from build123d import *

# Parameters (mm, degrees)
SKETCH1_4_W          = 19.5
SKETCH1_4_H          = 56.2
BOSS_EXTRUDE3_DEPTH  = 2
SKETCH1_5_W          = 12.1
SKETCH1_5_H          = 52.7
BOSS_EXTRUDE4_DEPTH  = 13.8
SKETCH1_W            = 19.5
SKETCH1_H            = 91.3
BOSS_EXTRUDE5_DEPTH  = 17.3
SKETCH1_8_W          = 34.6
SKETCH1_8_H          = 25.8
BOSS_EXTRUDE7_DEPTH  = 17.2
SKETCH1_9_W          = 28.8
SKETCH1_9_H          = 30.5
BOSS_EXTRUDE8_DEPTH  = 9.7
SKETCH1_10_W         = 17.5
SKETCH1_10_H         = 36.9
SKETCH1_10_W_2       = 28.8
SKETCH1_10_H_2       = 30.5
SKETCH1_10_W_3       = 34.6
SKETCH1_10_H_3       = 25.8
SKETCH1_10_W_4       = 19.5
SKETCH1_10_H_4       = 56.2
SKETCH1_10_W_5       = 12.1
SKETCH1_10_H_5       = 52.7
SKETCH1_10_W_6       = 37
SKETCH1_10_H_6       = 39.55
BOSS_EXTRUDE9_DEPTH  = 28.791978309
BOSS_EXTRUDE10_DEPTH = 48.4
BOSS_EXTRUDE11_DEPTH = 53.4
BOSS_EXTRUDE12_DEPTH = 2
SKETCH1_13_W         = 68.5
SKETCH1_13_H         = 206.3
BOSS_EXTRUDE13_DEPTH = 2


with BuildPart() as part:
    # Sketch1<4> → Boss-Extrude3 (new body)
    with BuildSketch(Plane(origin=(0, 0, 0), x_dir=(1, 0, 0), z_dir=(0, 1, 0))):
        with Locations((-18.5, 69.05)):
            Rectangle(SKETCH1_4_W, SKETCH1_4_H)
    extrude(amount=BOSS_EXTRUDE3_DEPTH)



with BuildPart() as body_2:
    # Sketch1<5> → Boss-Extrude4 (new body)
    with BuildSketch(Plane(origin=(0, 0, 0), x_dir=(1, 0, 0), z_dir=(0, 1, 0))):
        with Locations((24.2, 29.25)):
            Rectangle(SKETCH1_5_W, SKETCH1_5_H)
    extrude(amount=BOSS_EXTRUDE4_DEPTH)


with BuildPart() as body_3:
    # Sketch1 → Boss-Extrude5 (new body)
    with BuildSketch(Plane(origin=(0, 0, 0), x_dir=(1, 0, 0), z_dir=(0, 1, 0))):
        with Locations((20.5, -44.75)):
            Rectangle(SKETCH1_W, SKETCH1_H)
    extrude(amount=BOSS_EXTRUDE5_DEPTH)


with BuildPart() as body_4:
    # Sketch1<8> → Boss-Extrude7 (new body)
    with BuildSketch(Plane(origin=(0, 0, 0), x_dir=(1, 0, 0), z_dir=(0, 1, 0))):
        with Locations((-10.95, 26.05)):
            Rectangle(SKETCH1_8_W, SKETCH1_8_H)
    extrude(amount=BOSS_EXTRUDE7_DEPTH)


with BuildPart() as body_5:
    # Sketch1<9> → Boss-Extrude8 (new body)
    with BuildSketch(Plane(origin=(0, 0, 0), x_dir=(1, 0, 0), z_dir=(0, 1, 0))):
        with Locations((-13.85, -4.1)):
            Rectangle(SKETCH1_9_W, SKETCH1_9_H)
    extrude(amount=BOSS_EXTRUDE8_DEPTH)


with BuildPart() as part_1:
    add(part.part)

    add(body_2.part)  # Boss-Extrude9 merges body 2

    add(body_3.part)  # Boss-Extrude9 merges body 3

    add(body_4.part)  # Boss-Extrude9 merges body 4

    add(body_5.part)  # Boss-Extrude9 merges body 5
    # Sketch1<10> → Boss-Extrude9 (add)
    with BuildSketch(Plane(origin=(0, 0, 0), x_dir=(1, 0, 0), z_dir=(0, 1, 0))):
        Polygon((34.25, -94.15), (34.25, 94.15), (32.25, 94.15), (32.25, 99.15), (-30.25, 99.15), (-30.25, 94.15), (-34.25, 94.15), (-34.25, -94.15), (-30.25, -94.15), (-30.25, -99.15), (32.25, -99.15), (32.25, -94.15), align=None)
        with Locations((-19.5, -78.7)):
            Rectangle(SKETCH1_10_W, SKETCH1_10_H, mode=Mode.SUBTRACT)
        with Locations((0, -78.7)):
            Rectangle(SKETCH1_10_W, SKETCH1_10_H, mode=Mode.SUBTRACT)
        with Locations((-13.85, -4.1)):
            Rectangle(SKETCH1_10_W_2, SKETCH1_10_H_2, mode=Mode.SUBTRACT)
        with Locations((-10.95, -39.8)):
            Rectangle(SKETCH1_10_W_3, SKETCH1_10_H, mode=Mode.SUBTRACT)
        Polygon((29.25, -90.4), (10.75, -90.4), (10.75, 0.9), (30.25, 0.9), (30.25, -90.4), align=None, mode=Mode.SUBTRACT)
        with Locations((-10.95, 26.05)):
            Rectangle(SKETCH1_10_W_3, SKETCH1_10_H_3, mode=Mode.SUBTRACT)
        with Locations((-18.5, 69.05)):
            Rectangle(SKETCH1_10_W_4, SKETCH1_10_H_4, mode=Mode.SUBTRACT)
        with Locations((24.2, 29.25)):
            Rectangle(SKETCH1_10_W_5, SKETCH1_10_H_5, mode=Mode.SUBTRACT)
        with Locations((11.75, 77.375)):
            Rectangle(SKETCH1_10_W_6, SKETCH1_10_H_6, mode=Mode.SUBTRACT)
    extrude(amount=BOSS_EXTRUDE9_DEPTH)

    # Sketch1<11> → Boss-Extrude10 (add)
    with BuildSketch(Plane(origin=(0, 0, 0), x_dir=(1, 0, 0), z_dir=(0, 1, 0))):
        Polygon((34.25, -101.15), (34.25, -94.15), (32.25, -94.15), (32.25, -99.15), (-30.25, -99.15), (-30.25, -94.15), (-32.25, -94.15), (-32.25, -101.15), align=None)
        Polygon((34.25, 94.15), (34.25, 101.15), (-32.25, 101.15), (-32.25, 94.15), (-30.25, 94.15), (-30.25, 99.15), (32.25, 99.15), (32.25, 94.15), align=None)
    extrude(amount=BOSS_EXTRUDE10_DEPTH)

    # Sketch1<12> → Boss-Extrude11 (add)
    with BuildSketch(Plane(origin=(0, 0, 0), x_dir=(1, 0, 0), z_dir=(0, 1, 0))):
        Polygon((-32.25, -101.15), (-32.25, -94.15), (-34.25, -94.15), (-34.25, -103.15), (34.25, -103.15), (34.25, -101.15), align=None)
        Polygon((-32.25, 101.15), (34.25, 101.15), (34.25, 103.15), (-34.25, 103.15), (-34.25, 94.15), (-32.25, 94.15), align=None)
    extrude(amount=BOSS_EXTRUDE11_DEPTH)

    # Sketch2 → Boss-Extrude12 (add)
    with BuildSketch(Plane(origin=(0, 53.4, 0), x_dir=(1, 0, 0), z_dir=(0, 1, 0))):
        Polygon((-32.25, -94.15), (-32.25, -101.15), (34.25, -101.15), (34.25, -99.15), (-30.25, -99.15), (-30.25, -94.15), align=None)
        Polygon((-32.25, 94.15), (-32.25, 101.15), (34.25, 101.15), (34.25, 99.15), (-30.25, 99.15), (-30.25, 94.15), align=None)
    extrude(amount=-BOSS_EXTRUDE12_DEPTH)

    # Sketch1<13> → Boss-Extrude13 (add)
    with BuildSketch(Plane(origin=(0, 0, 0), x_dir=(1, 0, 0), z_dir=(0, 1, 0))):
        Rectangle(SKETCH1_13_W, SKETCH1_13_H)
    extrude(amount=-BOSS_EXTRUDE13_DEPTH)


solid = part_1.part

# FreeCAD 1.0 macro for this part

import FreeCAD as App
import Part
import Sketcher
from FreeCAD import Vector
Q = App.Units.Quantity

doc = App.newDocument("Part")
params = doc.addObject("Spreadsheet::Sheet", "Params")
for row, (alias, value) in enumerate([
    ("sketch1_width", "19.5 mm"),
    ("sketch1_height", "56.2 mm"),
    ("pad1_length", "2 mm"),
    ("sketch2_width", "12.1 mm"),
    ("sketch2_height", "52.7 mm"),
    ("pad2_length", "13.8 mm"),
    ("sketch3_width", "19.5 mm"),
    ("sketch3_height", "91.3 mm"),
    ("pad3_length", "17.3 mm"),
    ("sketch4_width", "34.6 mm"),
    ("sketch4_height", "25.8 mm"),
    ("pad4_length", "17.2 mm"),
    ("sketch5_width", "28.8 mm"),
    ("sketch5_height", "30.5 mm"),
    ("pad5_length", "9.7 mm"),
    ("sketch6_width", "2 mm"),
    ("sketch6_width2", "4 mm"),
    ("sketch6_width3", "37 mm"),
    ("sketch6_height", "5 mm"),
    ("sketch6_width4", "62.5 mm"),
    ("pad6_length", "28.791978 mm"),
    ("sketch7_width", "2 mm"),
    ("sketch7_height", "7 mm"),
    ("sketch7_height2", "5 mm"),
    ("sketch7_width2", "62.5 mm"),
    ("pad7_length", "48.4 mm"),
    ("sketch8_width", "2 mm"),
    ("sketch8_height", "7 mm"),
    ("sketch8_width2", "68.5 mm"),
    ("pad8_length", "53.4 mm"),
    ("sketch9_width", "2 mm"),
    ("sketch9_height", "7 mm"),
    ("sketch9_width2", "66.5 mm"),
    ("pad9_length", "2 mm"),
    ("sketch10_width", "68.5 mm"),
    ("sketch10_height", "206.3 mm"),
    ("pad10_length", "2 mm"),
], start=1):
    params.set(f"A{row}", alias)
    params.set(f"B{row}", "=" + value)
    params.setAlias(f"B{row}", alias)

body = doc.addObject("PartDesign::Body", "Body")

# Sketch on XZ plane
sketch1 = body.newObject("Sketcher::SketchObject", "Sketch")
sketch1.AttachmentSupport = (doc.getObject("XZ_Plane"), [""])
sketch1.MapMode = "FlatFace"
sketch1.addGeometry(Part.LineSegment(Vector(-28.25, -97.15, 0), Vector(-28.25, -40.95, 0)), False)
sketch1.addGeometry(Part.LineSegment(Vector(-28.25, -40.95, 0), Vector(-8.75, -40.95, 0)), False)
sketch1.addGeometry(Part.LineSegment(Vector(-8.75, -40.95, 0), Vector(-8.75, -97.15, 0)), False)
sketch1.addGeometry(Part.LineSegment(Vector(-8.75, -97.15, 0), Vector(-28.25, -97.15, 0)), False)
sketch1.addConstraint(Sketcher.Constraint("Coincident", 0, 2, 1, 1))
sketch1.addConstraint(Sketcher.Constraint("Coincident", 1, 2, 2, 1))
sketch1.addConstraint(Sketcher.Constraint("Coincident", 2, 2, 3, 1))
sketch1.addConstraint(Sketcher.Constraint("Coincident", 3, 2, 0, 1))
sketch1.addConstraint(Sketcher.Constraint("Vertical", 0))
sketch1.addConstraint(Sketcher.Constraint("Horizontal", 1))
sketch1.addConstraint(Sketcher.Constraint("Vertical", 2))
sketch1.addConstraint(Sketcher.Constraint("Horizontal", 3))
sketch1.addConstraint(Sketcher.Constraint("DistanceX", 1, 1, 1, 2, Q("19.5 mm")))
sketch1.addConstraint(Sketcher.Constraint("DistanceY", 0, 1, 0, 2, Q("56.2 mm")))
sketch1.addConstraint(Sketcher.Constraint("DistanceX", 0, 2, -1, 1, Q("28.25 mm")))
sketch1.addConstraint(Sketcher.Constraint("DistanceY", 0, 2, -1, 1, Q("40.95 mm")))
sketch1.setExpression("Constraints[8]", "Params.sketch1_width")
sketch1.setExpression("Constraints[9]", "Params.sketch1_height")
pad1 = body.newObject("PartDesign::Pad", "Pad")
pad1.Profile = sketch1
pad1.setExpression("Length", "Params.pad1_length")
pad1.Reversed = True
body2 = doc.addObject("PartDesign::Body", "Body001")

# Sketch on XZ plane
sketch2 = body2.newObject("Sketcher::SketchObject", "Sketch001")
sketch2.AttachmentSupport = (doc.getObject("XZ_Plane001"), [""])
sketch2.MapMode = "FlatFace"
sketch2.addGeometry(Part.LineSegment(Vector(18.15, -55.6, 0), Vector(18.15, -2.9, 0)), False)
sketch2.addGeometry(Part.LineSegment(Vector(18.15, -2.9, 0), Vector(30.25, -2.9, 0)), False)
sketch2.addGeometry(Part.LineSegment(Vector(30.25, -2.9, 0), Vector(30.25, -55.6, 0)), False)
sketch2.addGeometry(Part.LineSegment(Vector(30.25, -55.6, 0), Vector(18.15, -55.6, 0)), False)
sketch2.addConstraint(Sketcher.Constraint("Coincident", 0, 2, 1, 1))
sketch2.addConstraint(Sketcher.Constraint("Coincident", 1, 2, 2, 1))
sketch2.addConstraint(Sketcher.Constraint("Coincident", 2, 2, 3, 1))
sketch2.addConstraint(Sketcher.Constraint("Coincident", 3, 2, 0, 1))
sketch2.addConstraint(Sketcher.Constraint("Vertical", 0))
sketch2.addConstraint(Sketcher.Constraint("Horizontal", 1))
sketch2.addConstraint(Sketcher.Constraint("Vertical", 2))
sketch2.addConstraint(Sketcher.Constraint("Horizontal", 3))
sketch2.addConstraint(Sketcher.Constraint("DistanceX", 1, 1, 1, 2, Q("12.1 mm")))
sketch2.addConstraint(Sketcher.Constraint("DistanceY", 0, 1, 0, 2, Q("52.7 mm")))
sketch2.addConstraint(Sketcher.Constraint("DistanceY", 0, 2, -1, 1, Q("2.9 mm")))
sketch2.addConstraint(Sketcher.Constraint("DistanceX", -1, 1, 0, 2, Q("18.15 mm")))
sketch2.setExpression("Constraints[8]", "Params.sketch2_width")
sketch2.setExpression("Constraints[9]", "Params.sketch2_height")
pad2 = body2.newObject("PartDesign::Pad", "Pad001")
pad2.Profile = sketch2
pad2.setExpression("Length", "Params.pad2_length")
pad2.Reversed = True
body3 = doc.addObject("PartDesign::Body", "Body002")

# Sketch on XZ plane
sketch3 = body3.newObject("Sketcher::SketchObject", "Sketch002")
sketch3.AttachmentSupport = (doc.getObject("XZ_Plane002"), [""])
sketch3.MapMode = "FlatFace"
sketch3.addGeometry(Part.LineSegment(Vector(10.75, -0.9, 0), Vector(10.75, 90.4, 0)), False)
sketch3.addGeometry(Part.LineSegment(Vector(10.75, 90.4, 0), Vector(30.25, 90.4, 0)), False)
sketch3.addGeometry(Part.LineSegment(Vector(30.25, 90.4, 0), Vector(30.25, -0.9, 0)), False)
sketch3.addGeometry(Part.LineSegment(Vector(30.25, -0.9, 0), Vector(10.75, -0.9, 0)), False)
sketch3.addConstraint(Sketcher.Constraint("Coincident", 0, 2, 1, 1))
sketch3.addConstraint(Sketcher.Constraint("Coincident", 1, 2, 2, 1))
sketch3.addConstraint(Sketcher.Constraint("Coincident", 2, 2, 3, 1))
sketch3.addConstraint(Sketcher.Constraint("Coincident", 3, 2, 0, 1))
sketch3.addConstraint(Sketcher.Constraint("Vertical", 0))
sketch3.addConstraint(Sketcher.Constraint("Horizontal", 1))
sketch3.addConstraint(Sketcher.Constraint("Vertical", 2))
sketch3.addConstraint(Sketcher.Constraint("Horizontal", 3))
sketch3.addConstraint(Sketcher.Constraint("DistanceX", 1, 1, 1, 2, Q("19.5 mm")))
sketch3.addConstraint(Sketcher.Constraint("DistanceY", 0, 1, 0, 2, Q("91.3 mm")))
sketch3.addConstraint(Sketcher.Constraint("DistanceY", -1, 1, 0, 2, Q("90.4 mm")))
sketch3.addConstraint(Sketcher.Constraint("DistanceX", -1, 1, 0, 2, Q("10.75 mm")))
sketch3.setExpression("Constraints[8]", "Params.sketch3_width")
sketch3.setExpression("Constraints[9]", "Params.sketch3_height")
pad3 = body3.newObject("PartDesign::Pad", "Pad002")
pad3.Profile = sketch3
pad3.setExpression("Length", "Params.pad3_length")
pad3.Reversed = True
body4 = doc.addObject("PartDesign::Body", "Body003")

# Sketch on XZ plane
sketch4 = body4.newObject("Sketcher::SketchObject", "Sketch003")
sketch4.AttachmentSupport = (doc.getObject("XZ_Plane003"), [""])
sketch4.MapMode = "FlatFace"
sketch4.addGeometry(Part.LineSegment(Vector(-28.25, -38.95, 0), Vector(-28.25, -13.15, 0)), False)
sketch4.addGeometry(Part.LineSegment(Vector(-28.25, -13.15, 0), Vector(6.35, -13.15, 0)), False)
sketch4.addGeometry(Part.LineSegment(Vector(6.35, -13.15, 0), Vector(6.35, -38.95, 0)), False)
sketch4.addGeometry(Part.LineSegment(Vector(6.35, -38.95, 0), Vector(-28.25, -38.95, 0)), False)
sketch4.addConstraint(Sketcher.Constraint("Coincident", 0, 2, 1, 1))
sketch4.addConstraint(Sketcher.Constraint("Coincident", 1, 2, 2, 1))
sketch4.addConstraint(Sketcher.Constraint("Coincident", 2, 2, 3, 1))
sketch4.addConstraint(Sketcher.Constraint("Coincident", 3, 2, 0, 1))
sketch4.addConstraint(Sketcher.Constraint("Vertical", 0))
sketch4.addConstraint(Sketcher.Constraint("Horizontal", 1))
sketch4.addConstraint(Sketcher.Constraint("Vertical", 2))
sketch4.addConstraint(Sketcher.Constraint("Horizontal", 3))
sketch4.addConstraint(Sketcher.Constraint("DistanceX", 1, 1, 1, 2, Q("34.6 mm")))
sketch4.addConstraint(Sketcher.Constraint("DistanceY", 0, 1, 0, 2, Q("25.8 mm")))
sketch4.addConstraint(Sketcher.Constraint("DistanceX", 0, 2, -1, 1, Q("28.25 mm")))
sketch4.addConstraint(Sketcher.Constraint("DistanceY", 0, 2, -1, 1, Q("13.15 mm")))
sketch4.setExpression("Constraints[8]", "Params.sketch4_width")
sketch4.setExpression("Constraints[9]", "Params.sketch4_height")
pad4 = body4.newObject("PartDesign::Pad", "Pad003")
pad4.Profile = sketch4
pad4.setExpression("Length", "Params.pad4_length")
pad4.Reversed = True
body5 = doc.addObject("PartDesign::Body", "Body004")

# Sketch on XZ plane
sketch5 = body5.newObject("Sketcher::SketchObject", "Sketch004")
sketch5.AttachmentSupport = (doc.getObject("XZ_Plane004"), [""])
sketch5.MapMode = "FlatFace"
sketch5.addGeometry(Part.LineSegment(Vector(-28.25, -11.15, 0), Vector(-28.25, 19.35, 0)), False)
sketch5.addGeometry(Part.LineSegment(Vector(-28.25, 19.35, 0), Vector(0.55, 19.35, 0)), False)
sketch5.addGeometry(Part.LineSegment(Vector(0.55, 19.35, 0), Vector(0.55, -11.15, 0)), False)
sketch5.addGeometry(Part.LineSegment(Vector(0.55, -11.15, 0), Vector(-28.25, -11.15, 0)), False)
sketch5.addConstraint(Sketcher.Constraint("Coincident", 0, 2, 1, 1))
sketch5.addConstraint(Sketcher.Constraint("Coincident", 1, 2, 2, 1))
sketch5.addConstraint(Sketcher.Constraint("Coincident", 2, 2, 3, 1))
sketch5.addConstraint(Sketcher.Constraint("Coincident", 3, 2, 0, 1))
sketch5.addConstraint(Sketcher.Constraint("Vertical", 0))
sketch5.addConstraint(Sketcher.Constraint("Horizontal", 1))
sketch5.addConstraint(Sketcher.Constraint("Vertical", 2))
sketch5.addConstraint(Sketcher.Constraint("Horizontal", 3))
sketch5.addConstraint(Sketcher.Constraint("DistanceX", 1, 1, 1, 2, Q("28.8 mm")))
sketch5.addConstraint(Sketcher.Constraint("DistanceY", 0, 1, 0, 2, Q("30.5 mm")))
sketch5.addConstraint(Sketcher.Constraint("DistanceX", 0, 2, -1, 1, Q("28.25 mm")))
sketch5.addConstraint(Sketcher.Constraint("DistanceY", -1, 1, 0, 2, Q("19.35 mm")))
sketch5.setExpression("Constraints[8]", "Params.sketch5_width")
sketch5.setExpression("Constraints[9]", "Params.sketch5_height")
pad5 = body5.newObject("PartDesign::Pad", "Pad004")
pad5.Profile = sketch5
pad5.setExpression("Length", "Params.pad5_length")
pad5.Reversed = True
body.AllowCompound = True
doc.recompute()

boolean = body.newObject("PartDesign::Boolean", "Boolean")
boolean.Type = "Fuse"
boolean.addObjects([body2])
doc.recompute()

boolean2 = body.newObject("PartDesign::Boolean", "Boolean001")
boolean2.Type = "Fuse"
boolean2.addObjects([body3])
doc.recompute()

boolean3 = body.newObject("PartDesign::Boolean", "Boolean002")
boolean3.Type = "Fuse"
boolean3.addObjects([body4])
doc.recompute()

boolean4 = body.newObject("PartDesign::Boolean", "Boolean003")
boolean4.Type = "Fuse"
boolean4.addObjects([body5])

# Sketch on XZ plane
sketch6 = body.newObject("Sketcher::SketchObject", "Sketch005")
sketch6.AttachmentSupport = (doc.getObject("XZ_Plane"), [""])
sketch6.MapMode = "FlatFace"
sketch6.addGeometry(Part.LineSegment(Vector(34.25, 94.15, 0), Vector(34.25, -94.15, 0)), False)
sketch6.addGeometry(Part.LineSegment(Vector(34.25, -94.15, 0), Vector(32.25, -94.15, 0)), False)
sketch6.addGeometry(Part.LineSegment(Vector(32.25, -94.15, 0), Vector(32.25, -99.15, 0)), False)
sketch6.addGeometry(Part.LineSegment(Vector(32.25, -99.15, 0), Vector(-30.25, -99.15, 0)), False)
sketch6.addGeometry(Part.LineSegment(Vector(-30.25, -99.15, 0), Vector(-30.25, -94.15, 0)), False)
sketch6.addGeometry(Part.LineSegment(Vector(-30.25, -94.15, 0), Vector(-34.25, -94.15, 0)), False)
sketch6.addGeometry(Part.LineSegment(Vector(-34.25, -94.15, 0), Vector(-34.25, 94.15, 0)), False)
sketch6.addGeometry(Part.LineSegment(Vector(-34.25, 94.15, 0), Vector(-30.25, 94.15, 0)), False)
sketch6.addGeometry(Part.LineSegment(Vector(-30.25, 94.15, 0), Vector(-30.25, 99.15, 0)), False)
sketch6.addGeometry(Part.LineSegment(Vector(-30.25, 99.15, 0), Vector(32.25, 99.15, 0)), False)
sketch6.addGeometry(Part.LineSegment(Vector(32.25, 99.15, 0), Vector(32.25, 94.15, 0)), False)
sketch6.addGeometry(Part.LineSegment(Vector(32.25, 94.15, 0), Vector(34.25, 94.15, 0)), False)
sketch6.addGeometry(Part.LineSegment(Vector(-10.75, 97.15, 0), Vector(-28.25, 97.15, 0)), False)
sketch6.addGeometry(Part.LineSegment(Vector(-28.25, 97.15, 0), Vector(-28.25, 60.25, 0)), False)
sketch6.addGeometry(Part.LineSegment(Vector(-28.25, 60.25, 0), Vector(-10.75, 60.25, 0)), False)
sketch6.addGeometry(Part.LineSegment(Vector(-10.75, 60.25, 0), Vector(-10.75, 97.15, 0)), False)
sketch6.addGeometry(Part.LineSegment(Vector(8.75, 97.15, 0), Vector(-8.75, 97.15, 0)), False)
sketch6.addGeometry(Part.LineSegment(Vector(-8.75, 97.15, 0), Vector(-8.75, 60.25, 0)), False)
sketch6.addGeometry(Part.LineSegment(Vector(-8.75, 60.25, 0), Vector(8.75, 60.25, 0)), False)
sketch6.addGeometry(Part.LineSegment(Vector(8.75, 60.25, 0), Vector(8.75, 97.15, 0)), False)
sketch6.addGeometry(Part.LineSegment(Vector(0.55, 19.35, 0), Vector(-28.25, 19.35, 0)), False)
sketch6.addGeometry(Part.LineSegment(Vector(-28.25, 19.35, 0), Vector(-28.25, -11.15, 0)), False)
sketch6.addGeometry(Part.LineSegment(Vector(-28.25, -11.15, 0), Vector(0.55, -11.15, 0)), False)
sketch6.addGeometry(Part.LineSegment(Vector(0.55, -11.15, 0), Vector(0.55, 19.35, 0)), False)
sketch6.addGeometry(Part.LineSegment(Vector(6.35, 58.25, 0), Vector(-28.25, 58.25, 0)), False)
sketch6.addGeometry(Part.LineSegment(Vector(-28.25, 58.25, 0), Vector(-28.25, 21.35, 0)), False)
sketch6.addGeometry(Part.LineSegment(Vector(-28.25, 21.35, 0), Vector(6.35, 21.35, 0)), False)
sketch6.addGeometry(Part.LineSegment(Vector(6.35, 21.35, 0), Vector(6.35, 58.25, 0)), False)
sketch6.addGeometry(Part.LineSegment(Vector(30.25, 90.4, 0), Vector(10.75, 90.4, 0)), False)
sketch6.addGeometry(Part.LineSegment(Vector(10.75, 90.4, 0), Vector(10.75, -0.9, 0)), False)
sketch6.addGeometry(Part.LineSegment(Vector(10.75, -0.9, 0), Vector(30.25, -0.9, 0)), False)
sketch6.addGeometry(Part.LineSegment(Vector(30.25, -0.9, 0), Vector(30.25, 90.4, 0)), False)
sketch6.addGeometry(Part.LineSegment(Vector(6.35, -13.15, 0), Vector(-28.25, -13.15, 0)), False)
sketch6.addGeometry(Part.LineSegment(Vector(-28.25, -13.15, 0), Vector(-28.25, -38.95, 0)), False)
sketch6.addGeometry(Part.LineSegment(Vector(-28.25, -38.95, 0), Vector(6.35, -38.95, 0)), False)
sketch6.addGeometry(Part.LineSegment(Vector(6.35, -38.95, 0), Vector(6.35, -13.15, 0)), False)
sketch6.addGeometry(Part.LineSegment(Vector(-8.75, -40.95, 0), Vector(-28.25, -40.95, 0)), False)
sketch6.addGeometry(Part.LineSegment(Vector(-28.25, -40.95, 0), Vector(-28.25, -97.15, 0)), False)
sketch6.addGeometry(Part.LineSegment(Vector(-28.25, -97.15, 0), Vector(-8.75, -97.15, 0)), False)
sketch6.addGeometry(Part.LineSegment(Vector(-8.75, -97.15, 0), Vector(-8.75, -40.95, 0)), False)
sketch6.addGeometry(Part.LineSegment(Vector(30.25, -2.9, 0), Vector(18.15, -2.9, 0)), False)
sketch6.addGeometry(Part.LineSegment(Vector(18.15, -2.9, 0), Vector(18.15, -55.6, 0)), False)
sketch6.addGeometry(Part.LineSegment(Vector(18.15, -55.6, 0), Vector(30.25, -55.6, 0)), False)
sketch6.addGeometry(Part.LineSegment(Vector(30.25, -55.6, 0), Vector(30.25, -2.9, 0)), False)
sketch6.addGeometry(Part.LineSegment(Vector(30.25, -57.6, 0), Vector(-6.75, -57.6, 0)), False)
sketch6.addGeometry(Part.LineSegment(Vector(-6.75, -57.6, 0), Vector(-6.75, -97.15, 0)), False)
sketch6.addGeometry(Part.LineSegment(Vector(-6.75, -97.15, 0), Vector(30.25, -97.15, 0)), False)
sketch6.addGeometry(Part.LineSegment(Vector(30.25, -97.15, 0), Vector(30.25, -57.6, 0)), False)
sketch6.addConstraint(Sketcher.Constraint("Coincident", 0, 2, 1, 1))
sketch6.addConstraint(Sketcher.Constraint("Coincident", 1, 2, 2, 1))
sketch6.addConstraint(Sketcher.Constraint("Coincident", 2, 2, 3, 1))
sketch6.addConstraint(Sketcher.Constraint("Coincident", 3, 2, 4, 1))
sketch6.addConstraint(Sketcher.Constraint("Coincident", 4, 2, 5, 1))
sketch6.addConstraint(Sketcher.Constraint("Coincident", 5, 2, 6, 1))
sketch6.addConstraint(Sketcher.Constraint("Coincident", 6, 2, 7, 1))
sketch6.addConstraint(Sketcher.Constraint("Coincident", 7, 2, 8, 1))
sketch6.addConstraint(Sketcher.Constraint("Coincident", 8, 2, 9, 1))
sketch6.addConstraint(Sketcher.Constraint("Coincident", 9, 2, 10, 1))
sketch6.addConstraint(Sketcher.Constraint("Coincident", 10, 2, 11, 1))
sketch6.addConstraint(Sketcher.Constraint("Coincident", 11, 2, 0, 1))
sketch6.addConstraint(Sketcher.Constraint("Coincident", 12, 2, 13, 1))
sketch6.addConstraint(Sketcher.Constraint("Coincident", 13, 2, 14, 1))
sketch6.addConstraint(Sketcher.Constraint("Coincident", 14, 2, 15, 1))
sketch6.addConstraint(Sketcher.Constraint("Coincident", 15, 2, 12, 1))
sketch6.addConstraint(Sketcher.Constraint("Coincident", 16, 2, 17, 1))
sketch6.addConstraint(Sketcher.Constraint("Coincident", 17, 2, 18, 1))
sketch6.addConstraint(Sketcher.Constraint("Coincident", 18, 2, 19, 1))
sketch6.addConstraint(Sketcher.Constraint("Coincident", 19, 2, 16, 1))
sketch6.addConstraint(Sketcher.Constraint("Coincident", 20, 2, 21, 1))
sketch6.addConstraint(Sketcher.Constraint("Coincident", 21, 2, 22, 1))
sketch6.addConstraint(Sketcher.Constraint("Coincident", 22, 2, 23, 1))
sketch6.addConstraint(Sketcher.Constraint("Coincident", 23, 2, 20, 1))
sketch6.addConstraint(Sketcher.Constraint("Coincident", 24, 2, 25, 1))
sketch6.addConstraint(Sketcher.Constraint("Coincident", 25, 2, 26, 1))
sketch6.addConstraint(Sketcher.Constraint("Coincident", 26, 2, 27, 1))
sketch6.addConstraint(Sketcher.Constraint("Coincident", 27, 2, 24, 1))
sketch6.addConstraint(Sketcher.Constraint("Coincident", 28, 2, 29, 1))
sketch6.addConstraint(Sketcher.Constraint("Coincident", 29, 2, 30, 1))
sketch6.addConstraint(Sketcher.Constraint("Coincident", 30, 2, 31, 1))
sketch6.addConstraint(Sketcher.Constraint("Coincident", 31, 2, 28, 1))
sketch6.addConstraint(Sketcher.Constraint("Coincident", 32, 2, 33, 1))
sketch6.addConstraint(Sketcher.Constraint("Coincident", 33, 2, 34, 1))
sketch6.addConstraint(Sketcher.Constraint("Coincident", 34, 2, 35, 1))
sketch6.addConstraint(Sketcher.Constraint("Coincident", 35, 2, 32, 1))
sketch6.addConstraint(Sketcher.Constraint("Coincident", 36, 2, 37, 1))
sketch6.addConstraint(Sketcher.Constraint("Coincident", 37, 2, 38, 1))
sketch6.addConstraint(Sketcher.Constraint("Coincident", 38, 2, 39, 1))
sketch6.addConstraint(Sketcher.Constraint("Coincident", 39, 2, 36, 1))
sketch6.addConstraint(Sketcher.Constraint("Coincident", 40, 2, 41, 1))
sketch6.addConstraint(Sketcher.Constraint("Coincident", 41, 2, 42, 1))
sketch6.addConstraint(Sketcher.Constraint("Coincident", 42, 2, 43, 1))
sketch6.addConstraint(Sketcher.Constraint("Coincident", 43, 2, 40, 1))
sketch6.addConstraint(Sketcher.Constraint("Coincident", 44, 2, 45, 1))
sketch6.addConstraint(Sketcher.Constraint("Coincident", 45, 2, 46, 1))
sketch6.addConstraint(Sketcher.Constraint("Coincident", 46, 2, 47, 1))
sketch6.addConstraint(Sketcher.Constraint("Coincident", 47, 2, 44, 1))
sketch6.addConstraint(Sketcher.Constraint("Vertical", 0))
sketch6.addConstraint(Sketcher.Constraint("Horizontal", 1))
sketch6.addConstraint(Sketcher.Constraint("Vertical", 2))
sketch6.addConstraint(Sketcher.Constraint("Horizontal", 3))
sketch6.addConstraint(Sketcher.Constraint("Vertical", 4))
sketch6.addConstraint(Sketcher.Constraint("Horizontal", 5))
sketch6.addConstraint(Sketcher.Constraint("Vertical", 6))
sketch6.addConstraint(Sketcher.Constraint("Horizontal", 7))
sketch6.addConstraint(Sketcher.Constraint("Vertical", 8))
sketch6.addConstraint(Sketcher.Constraint("Horizontal", 9))
sketch6.addConstraint(Sketcher.Constraint("Vertical", 10))
sketch6.addConstraint(Sketcher.Constraint("Horizontal", 11))
sketch6.addConstraint(Sketcher.Constraint("Horizontal", 12))
sketch6.addConstraint(Sketcher.Constraint("Vertical", 13))
sketch6.addConstraint(Sketcher.Constraint("Horizontal", 14))
sketch6.addConstraint(Sketcher.Constraint("Vertical", 15))
sketch6.addConstraint(Sketcher.Constraint("Horizontal", 16))
sketch6.addConstraint(Sketcher.Constraint("Vertical", 17))
sketch6.addConstraint(Sketcher.Constraint("Horizontal", 18))
sketch6.addConstraint(Sketcher.Constraint("Vertical", 19))
sketch6.addConstraint(Sketcher.Constraint("Horizontal", 20))
sketch6.addConstraint(Sketcher.Constraint("Vertical", 21))
sketch6.addConstraint(Sketcher.Constraint("Horizontal", 22))
sketch6.addConstraint(Sketcher.Constraint("Vertical", 23))
sketch6.addConstraint(Sketcher.Constraint("Horizontal", 24))
sketch6.addConstraint(Sketcher.Constraint("Vertical", 25))
sketch6.addConstraint(Sketcher.Constraint("Horizontal", 26))
sketch6.addConstraint(Sketcher.Constraint("Vertical", 27))
sketch6.addConstraint(Sketcher.Constraint("Horizontal", 28))
sketch6.addConstraint(Sketcher.Constraint("Vertical", 29))
sketch6.addConstraint(Sketcher.Constraint("Horizontal", 30))
sketch6.addConstraint(Sketcher.Constraint("Vertical", 31))
sketch6.addConstraint(Sketcher.Constraint("Horizontal", 32))
sketch6.addConstraint(Sketcher.Constraint("Vertical", 33))
sketch6.addConstraint(Sketcher.Constraint("Horizontal", 34))
sketch6.addConstraint(Sketcher.Constraint("Vertical", 35))
sketch6.addConstraint(Sketcher.Constraint("Horizontal", 36))
sketch6.addConstraint(Sketcher.Constraint("Vertical", 37))
sketch6.addConstraint(Sketcher.Constraint("Horizontal", 38))
sketch6.addConstraint(Sketcher.Constraint("Vertical", 39))
sketch6.addConstraint(Sketcher.Constraint("Horizontal", 40))
sketch6.addConstraint(Sketcher.Constraint("Vertical", 41))
sketch6.addConstraint(Sketcher.Constraint("Horizontal", 42))
sketch6.addConstraint(Sketcher.Constraint("Vertical", 43))
sketch6.addConstraint(Sketcher.Constraint("Horizontal", 44))
sketch6.addConstraint(Sketcher.Constraint("Vertical", 45))
sketch6.addConstraint(Sketcher.Constraint("Horizontal", 46))
sketch6.addConstraint(Sketcher.Constraint("Vertical", 47))
sketch6.addConstraint(Sketcher.Constraint("Symmetric", 0, 2, 6, 2, -1, 1))
sketch6.addConstraint(Sketcher.Constraint("Symmetric", 19, 2, 38, 2, -1, 1))
sketch6.addConstraint(Sketcher.Constraint("Symmetric", 4, 2, 7, 2, -1))
sketch6.addConstraint(Sketcher.Constraint("Symmetric", 2, 2, 9, 2, -1))
sketch6.addConstraint(Sketcher.Constraint("Symmetric", 12, 2, 37, 2, -1))
sketch6.addConstraint(Sketcher.Constraint("Horizontal", 7, 2, 10, 2))
sketch6.addConstraint(Sketcher.Constraint("Horizontal", 14, 2, 17, 2))
sketch6.addConstraint(Sketcher.Constraint("Horizontal", 38, 2, 45, 2))
sketch6.addConstraint(Sketcher.Constraint("Vertical", 13, 2, 20, 2))
sketch6.addConstraint(Sketcher.Constraint("Vertical", 21, 2, 24, 2))
sketch6.addConstraint(Sketcher.Constraint("Vertical", 25, 2, 32, 2))
sketch6.addConstraint(Sketcher.Constraint("Vertical", 27, 2, 34, 2))
sketch6.addConstraint(Sketcher.Constraint("Vertical", 17, 2, 38, 2))
sketch6.addConstraint(Sketcher.Constraint("Vertical", 31, 2, 42, 2))
sketch6.addConstraint(Sketcher.Constraint("Vertical", 43, 2, 46, 2))
sketch6.addConstraint(Sketcher.Constraint("Equal", 14, 16))
sketch6.addConstraint(Sketcher.Constraint("Equal", 30, 36))
sketch6.addConstraint(Sketcher.Constraint("Equal", 19, 25))
sketch6.addConstraint(Sketcher.Constraint("DistanceX", 1, 2, 1, 1, Q("2 mm")))
sketch6.addConstraint(Sketcher.Constraint("DistanceX", 5, 2, 5, 1, Q("4 mm")))
sketch6.addConstraint(Sketcher.Constraint("DistanceX", 44, 2, 44, 1, Q("37 mm")))
sketch6.addConstraint(Sketcher.Constraint("DistanceY", 2, 2, 2, 1, Q("5 mm")))
sketch6.addConstraint(Sketcher.Constraint("DistanceX", 3, 2, 3, 1, Q("62.5 mm")))
sketch6.addConstraint(Sketcher.Constraint("DistanceX", 12, 2, 12, 1, Q("17.5 mm")))
sketch6.addConstraint(Sketcher.Constraint("DistanceX", 20, 2, 20, 1, Q("28.8 mm")))
sketch6.addConstraint(Sketcher.Constraint("DistanceX", 24, 2, 24, 1, Q("34.6 mm")))
sketch6.addConstraint(Sketcher.Constraint("DistanceX", 28, 2, 28, 1, Q("19.5 mm")))
sketch6.addConstraint(Sketcher.Constraint("DistanceX", 40, 2, 40, 1, Q("12.1 mm")))
sketch6.addConstraint(Sketcher.Constraint("DistanceY", 0, 2, 0, 1, Q("188.3 mm")))
sketch6.addConstraint(Sketcher.Constraint("DistanceY", 13, 2, 13, 1, Q("36.9 mm")))
sketch6.addConstraint(Sketcher.Constraint("DistanceY", 21, 2, 21, 1, Q("30.5 mm")))
sketch6.addConstraint(Sketcher.Constraint("DistanceY", 29, 2, 29, 1, Q("91.3 mm")))
sketch6.addConstraint(Sketcher.Constraint("DistanceY", 33, 2, 33, 1, Q("25.8 mm")))
sketch6.addConstraint(Sketcher.Constraint("DistanceY", 37, 2, 37, 1, Q("56.2 mm")))
sketch6.addConstraint(Sketcher.Constraint("DistanceY", 41, 2, 41, 1, Q("52.7 mm")))
sketch6.addConstraint(Sketcher.Constraint("DistanceY", 12, 2, 8, 2, Q("2 mm")))
sketch6.addConstraint(Sketcher.Constraint("DistanceY", 24, 2, 13, 2, Q("2 mm")))
sketch6.addConstraint(Sketcher.Constraint("DistanceY", 20, 2, 25, 2, Q("2 mm")))
sketch6.addConstraint(Sketcher.Constraint("DistanceX", 19, 2, 28, 2, Q("2 mm")))
sketch6.addConstraint(Sketcher.Constraint("DistanceY", 32, 2, 21, 2, Q("2 mm")))
sketch6.addConstraint(Sketcher.Constraint("DistanceY", 40, 2, 29, 2, Q("2 mm")))
sketch6.addConstraint(Sketcher.Constraint("DistanceY", 44, 2, 41, 2, Q("2 mm")))
sketch6.addConstraint(Sketcher.Constraint("DistanceY", 45, 2, 45, 1, Q("39.55 mm")))
sketch6.setExpression("Constraints[114]", "Params.sketch6_width")
sketch6.setExpression("Constraints[115]", "Params.sketch6_width2")
sketch6.setExpression("Constraints[116]", "Params.sketch6_width3")
sketch6.setExpression("Constraints[117]", "Params.sketch6_height")
sketch6.setExpression("Constraints[118]", "Params.sketch6_width4")
pad6 = body.newObject("PartDesign::Pad", "Pad005")
pad6.Profile = sketch6
pad6.setExpression("Length", "Params.pad6_length")
pad6.Reversed = True

# Sketch on XZ plane
sketch7 = body.newObject("Sketcher::SketchObject", "Sketch006")
sketch7.AttachmentSupport = (doc.getObject("XZ_Plane"), [""])
sketch7.MapMode = "FlatFace"
sketch7.addGeometry(Part.LineSegment(Vector(34.25, 101.15, 0), Vector(34.25, 94.15, 0)), False)
sketch7.addGeometry(Part.LineSegment(Vector(34.25, 94.15, 0), Vector(32.25, 94.15, 0)), False)
sketch7.addGeometry(Part.LineSegment(Vector(32.25, 94.15, 0), Vector(32.25, 99.15, 0)), False)
sketch7.addGeometry(Part.LineSegment(Vector(32.25, 99.15, 0), Vector(-30.25, 99.15, 0)), False)
sketch7.addGeometry(Part.LineSegment(Vector(-30.25, 99.15, 0), Vector(-30.25, 94.15, 0)), False)
sketch7.addGeometry(Part.LineSegment(Vector(-30.25, 94.15, 0), Vector(-32.25, 94.15, 0)), False)
sketch7.addGeometry(Part.LineSegment(Vector(-32.25, 94.15, 0), Vector(-32.25, 101.15, 0)), False)
sketch7.addGeometry(Part.LineSegment(Vector(-32.25, 101.15, 0), Vector(34.25, 101.15, 0)), False)
sketch7.addGeometry(Part.LineSegment(Vector(34.25, -94.15, 0), Vector(34.25, -101.15, 0)), False)
sketch7.addGeometry(Part.LineSegment(Vector(34.25, -101.15, 0), Vector(-32.25, -101.15, 0)), False)
sketch7.addGeometry(Part.LineSegment(Vector(-32.25, -101.15, 0), Vector(-32.25, -94.15, 0)), False)
sketch7.addGeometry(Part.LineSegment(Vector(-32.25, -94.15, 0), Vector(-30.25, -94.15, 0)), False)
sketch7.addGeometry(Part.LineSegment(Vector(-30.25, -94.15, 0), Vector(-30.25, -99.15, 0)), False)
sketch7.addGeometry(Part.LineSegment(Vector(-30.25, -99.15, 0), Vector(32.25, -99.15, 0)), False)
sketch7.addGeometry(Part.LineSegment(Vector(32.25, -99.15, 0), Vector(32.25, -94.15, 0)), False)
sketch7.addGeometry(Part.LineSegment(Vector(32.25, -94.15, 0), Vector(34.25, -94.15, 0)), False)
sketch7.addConstraint(Sketcher.Constraint("Coincident", 0, 2, 1, 1))
sketch7.addConstraint(Sketcher.Constraint("Coincident", 1, 2, 2, 1))
sketch7.addConstraint(Sketcher.Constraint("Coincident", 2, 2, 3, 1))
sketch7.addConstraint(Sketcher.Constraint("Coincident", 3, 2, 4, 1))
sketch7.addConstraint(Sketcher.Constraint("Coincident", 4, 2, 5, 1))
sketch7.addConstraint(Sketcher.Constraint("Coincident", 5, 2, 6, 1))
sketch7.addConstraint(Sketcher.Constraint("Coincident", 6, 2, 7, 1))
sketch7.addConstraint(Sketcher.Constraint("Coincident", 7, 2, 0, 1))
sketch7.addConstraint(Sketcher.Constraint("Coincident", 8, 2, 9, 1))
sketch7.addConstraint(Sketcher.Constraint("Coincident", 9, 2, 10, 1))
sketch7.addConstraint(Sketcher.Constraint("Coincident", 10, 2, 11, 1))
sketch7.addConstraint(Sketcher.Constraint("Coincident", 11, 2, 12, 1))
sketch7.addConstraint(Sketcher.Constraint("Coincident", 12, 2, 13, 1))
sketch7.addConstraint(Sketcher.Constraint("Coincident", 13, 2, 14, 1))
sketch7.addConstraint(Sketcher.Constraint("Coincident", 14, 2, 15, 1))
sketch7.addConstraint(Sketcher.Constraint("Coincident", 15, 2, 8, 1))
sketch7.addConstraint(Sketcher.Constraint("Vertical", 0))
sketch7.addConstraint(Sketcher.Constraint("Horizontal", 1))
sketch7.addConstraint(Sketcher.Constraint("Vertical", 2))
sketch7.addConstraint(Sketcher.Constraint("Horizontal", 3))
sketch7.addConstraint(Sketcher.Constraint("Vertical", 4))
sketch7.addConstraint(Sketcher.Constraint("Horizontal", 5))
sketch7.addConstraint(Sketcher.Constraint("Vertical", 6))
sketch7.addConstraint(Sketcher.Constraint("Horizontal", 7))
sketch7.addConstraint(Sketcher.Constraint("Vertical", 8))
sketch7.addConstraint(Sketcher.Constraint("Horizontal", 9))
sketch7.addConstraint(Sketcher.Constraint("Vertical", 10))
sketch7.addConstraint(Sketcher.Constraint("Horizontal", 11))
sketch7.addConstraint(Sketcher.Constraint("Vertical", 12))
sketch7.addConstraint(Sketcher.Constraint("Horizontal", 13))
sketch7.addConstraint(Sketcher.Constraint("Vertical", 14))
sketch7.addConstraint(Sketcher.Constraint("Horizontal", 15))
sketch7.addConstraint(Sketcher.Constraint("Symmetric", 1, 2, 10, 2, -1, 1))
sketch7.addConstraint(Sketcher.Constraint("Symmetric", 5, 2, 14, 2, -1, 1))
sketch7.addConstraint(Sketcher.Constraint("Symmetric", 1, 2, 5, 2, -2))
sketch7.addConstraint(Sketcher.Constraint("Symmetric", 7, 2, 8, 2, -1))
sketch7.addConstraint(Sketcher.Constraint("Symmetric", 3, 2, 12, 2, -1))
sketch7.addConstraint(Sketcher.Constraint("Equal", 1, 5))
sketch7.addConstraint(Sketcher.Constraint("DistanceX", 1, 2, 1, 1, Q("2 mm")))
sketch7.addConstraint(Sketcher.Constraint("DistanceY", 0, 2, 0, 1, Q("7 mm")))
sketch7.addConstraint(Sketcher.Constraint("DistanceY", 2, 1, 2, 2, Q("5 mm")))
sketch7.addConstraint(Sketcher.Constraint("DistanceX", 3, 2, 3, 1, Q("62.5 mm")))
sketch7.addConstraint(Sketcher.Constraint("DistanceY", 8, 2, 0, 2, Q("195.3 mm")))
sketch7.setExpression("Constraints[38]", "Params.sketch7_width")
sketch7.setExpression("Constraints[39]", "Params.sketch7_height")
sketch7.setExpression("Constraints[40]", "Params.sketch7_height2")
sketch7.setExpression("Constraints[41]", "Params.sketch7_width2")
pad7 = body.newObject("PartDesign::Pad", "Pad006")
pad7.Profile = sketch7
pad7.setExpression("Length", "Params.pad7_length")
pad7.Reversed = True

# Sketch on XZ plane
sketch8 = body.newObject("Sketcher::SketchObject", "Sketch007")
sketch8.AttachmentSupport = (doc.getObject("XZ_Plane"), [""])
sketch8.MapMode = "FlatFace"
sketch8.addGeometry(Part.LineSegment(Vector(-32.25, 101.15, 0), Vector(-32.25, 94.15, 0)), False)
sketch8.addGeometry(Part.LineSegment(Vector(-32.25, 94.15, 0), Vector(-34.25, 94.15, 0)), False)
sketch8.addGeometry(Part.LineSegment(Vector(-34.25, 94.15, 0), Vector(-34.25, 103.15, 0)), False)
sketch8.addGeometry(Part.LineSegment(Vector(-34.25, 103.15, 0), Vector(34.25, 103.15, 0)), False)
sketch8.addGeometry(Part.LineSegment(Vector(34.25, 103.15, 0), Vector(34.25, 101.15, 0)), False)
sketch8.addGeometry(Part.LineSegment(Vector(34.25, 101.15, 0), Vector(-32.25, 101.15, 0)), False)
sketch8.addGeometry(Part.LineSegment(Vector(-32.25, -101.15, 0), Vector(34.25, -101.15, 0)), False)
sketch8.addGeometry(Part.LineSegment(Vector(34.25, -101.15, 0), Vector(34.25, -103.15, 0)), False)
sketch8.addGeometry(Part.LineSegment(Vector(34.25, -103.15, 0), Vector(-34.25, -103.15, 0)), False)
sketch8.addGeometry(Part.LineSegment(Vector(-34.25, -103.15, 0), Vector(-34.25, -94.15, 0)), False)
sketch8.addGeometry(Part.LineSegment(Vector(-34.25, -94.15, 0), Vector(-32.25, -94.15, 0)), False)
sketch8.addGeometry(Part.LineSegment(Vector(-32.25, -94.15, 0), Vector(-32.25, -101.15, 0)), False)
sketch8.addConstraint(Sketcher.Constraint("Coincident", 0, 2, 1, 1))
sketch8.addConstraint(Sketcher.Constraint("Coincident", 1, 2, 2, 1))
sketch8.addConstraint(Sketcher.Constraint("Coincident", 2, 2, 3, 1))
sketch8.addConstraint(Sketcher.Constraint("Coincident", 3, 2, 4, 1))
sketch8.addConstraint(Sketcher.Constraint("Coincident", 4, 2, 5, 1))
sketch8.addConstraint(Sketcher.Constraint("Coincident", 5, 2, 0, 1))
sketch8.addConstraint(Sketcher.Constraint("Coincident", 6, 2, 7, 1))
sketch8.addConstraint(Sketcher.Constraint("Coincident", 7, 2, 8, 1))
sketch8.addConstraint(Sketcher.Constraint("Coincident", 8, 2, 9, 1))
sketch8.addConstraint(Sketcher.Constraint("Coincident", 9, 2, 10, 1))
sketch8.addConstraint(Sketcher.Constraint("Coincident", 10, 2, 11, 1))
sketch8.addConstraint(Sketcher.Constraint("Coincident", 11, 2, 6, 1))
sketch8.addConstraint(Sketcher.Constraint("Vertical", 0))
sketch8.addConstraint(Sketcher.Constraint("Horizontal", 1))
sketch8.addConstraint(Sketcher.Constraint("Vertical", 2))
sketch8.addConstraint(Sketcher.Constraint("Horizontal", 3))
sketch8.addConstraint(Sketcher.Constraint("Vertical", 4))
sketch8.addConstraint(Sketcher.Constraint("Horizontal", 5))
sketch8.addConstraint(Sketcher.Constraint("Horizontal", 6))
sketch8.addConstraint(Sketcher.Constraint("Vertical", 7))
sketch8.addConstraint(Sketcher.Constraint("Horizontal", 8))
sketch8.addConstraint(Sketcher.Constraint("Vertical", 9))
sketch8.addConstraint(Sketcher.Constraint("Horizontal", 10))
sketch8.addConstraint(Sketcher.Constraint("Vertical", 11))
sketch8.addConstraint(Sketcher.Constraint("Symmetric", 2, 2, 7, 2, -1, 1))
sketch8.addConstraint(Sketcher.Constraint("Symmetric", 4, 2, 6, 2, -1))
sketch8.addConstraint(Sketcher.Constraint("Symmetric", 1, 2, 9, 2, -1))
sketch8.addConstraint(Sketcher.Constraint("Vertical", 5, 2, 10, 2))
sketch8.addConstraint(Sketcher.Constraint("Equal", 10, 4))
sketch8.addConstraint(Sketcher.Constraint("DistanceX", 1, 2, 1, 1, Q("2 mm")))
sketch8.addConstraint(Sketcher.Constraint("DistanceY", 0, 2, 0, 1, Q("7 mm")))
sketch8.addConstraint(Sketcher.Constraint("DistanceX", 3, 1, 3, 2, Q("68.5 mm")))
sketch8.addConstraint(Sketcher.Constraint("DistanceY", 6, 2, 4, 2, Q("202.3 mm")))
sketch8.setExpression("Constraints[29]", "Params.sketch8_width")
sketch8.setExpression("Constraints[30]", "Params.sketch8_height")
sketch8.setExpression("Constraints[31]", "Params.sketch8_width2")
pad8 = body.newObject("PartDesign::Pad", "Pad007")
pad8.Profile = sketch8
pad8.setExpression("Length", "Params.pad8_length")
pad8.Reversed = True

# Sketch on XZ plane
sketch9 = body.newObject("Sketcher::SketchObject", "Sketch008")
sketch9.AttachmentSupport = (doc.getObject("XZ_Plane"), [""])
sketch9.MapMode = "FlatFace"
sketch9.AttachmentOffset = App.Placement(Vector(0, 0, -53.4), App.Rotation())
sketch9.addGeometry(Part.LineSegment(Vector(-32.25, 94.15, 0), Vector(-32.25, 101.15, 0)), False)
sketch9.addGeometry(Part.LineSegment(Vector(-32.25, 101.15, 0), Vector(34.25, 101.15, 0)), False)
sketch9.addGeometry(Part.LineSegment(Vector(34.25, 101.15, 0), Vector(34.25, 99.15, 0)), False)
sketch9.addGeometry(Part.LineSegment(Vector(34.25, 99.15, 0), Vector(-30.25, 99.15, 0)), False)
sketch9.addGeometry(Part.LineSegment(Vector(-30.25, 99.15, 0), Vector(-30.25, 94.15, 0)), False)
sketch9.addGeometry(Part.LineSegment(Vector(-30.25, 94.15, 0), Vector(-32.25, 94.15, 0)), False)
sketch9.addGeometry(Part.LineSegment(Vector(-32.25, -101.15, 0), Vector(-32.25, -94.15, 0)), False)
sketch9.addGeometry(Part.LineSegment(Vector(-32.25, -94.15, 0), Vector(-30.25, -94.15, 0)), False)
sketch9.addGeometry(Part.LineSegment(Vector(-30.25, -94.15, 0), Vector(-30.25, -99.15, 0)), False)
sketch9.addGeometry(Part.LineSegment(Vector(-30.25, -99.15, 0), Vector(34.25, -99.15, 0)), False)
sketch9.addGeometry(Part.LineSegment(Vector(34.25, -99.15, 0), Vector(34.25, -101.15, 0)), False)
sketch9.addGeometry(Part.LineSegment(Vector(34.25, -101.15, 0), Vector(-32.25, -101.15, 0)), False)
sketch9.addConstraint(Sketcher.Constraint("Coincident", 0, 2, 1, 1))
sketch9.addConstraint(Sketcher.Constraint("Coincident", 1, 2, 2, 1))
sketch9.addConstraint(Sketcher.Constraint("Coincident", 2, 2, 3, 1))
sketch9.addConstraint(Sketcher.Constraint("Coincident", 3, 2, 4, 1))
sketch9.addConstraint(Sketcher.Constraint("Coincident", 4, 2, 5, 1))
sketch9.addConstraint(Sketcher.Constraint("Coincident", 5, 2, 0, 1))
sketch9.addConstraint(Sketcher.Constraint("Coincident", 6, 2, 7, 1))
sketch9.addConstraint(Sketcher.Constraint("Coincident", 7, 2, 8, 1))
sketch9.addConstraint(Sketcher.Constraint("Coincident", 8, 2, 9, 1))
sketch9.addConstraint(Sketcher.Constraint("Coincident", 9, 2, 10, 1))
sketch9.addConstraint(Sketcher.Constraint("Coincident", 10, 2, 11, 1))
sketch9.addConstraint(Sketcher.Constraint("Coincident", 11, 2, 6, 1))
sketch9.addConstraint(Sketcher.Constraint("Vertical", 0))
sketch9.addConstraint(Sketcher.Constraint("Horizontal", 1))
sketch9.addConstraint(Sketcher.Constraint("Vertical", 2))
sketch9.addConstraint(Sketcher.Constraint("Horizontal", 3))
sketch9.addConstraint(Sketcher.Constraint("Vertical", 4))
sketch9.addConstraint(Sketcher.Constraint("Horizontal", 5))
sketch9.addConstraint(Sketcher.Constraint("Vertical", 6))
sketch9.addConstraint(Sketcher.Constraint("Horizontal", 7))
sketch9.addConstraint(Sketcher.Constraint("Vertical", 8))
sketch9.addConstraint(Sketcher.Constraint("Horizontal", 9))
sketch9.addConstraint(Sketcher.Constraint("Vertical", 10))
sketch9.addConstraint(Sketcher.Constraint("Horizontal", 11))
sketch9.addConstraint(Sketcher.Constraint("Symmetric", 5, 2, 6, 2, -1))
sketch9.addConstraint(Sketcher.Constraint("Symmetric", 3, 2, 8, 2, -1))
sketch9.addConstraint(Sketcher.Constraint("Symmetric", 1, 2, 10, 2, -1))
sketch9.addConstraint(Sketcher.Constraint("Equal", 7, 2))
sketch9.addConstraint(Sketcher.Constraint("DistanceX", 5, 2, 5, 1, Q("2 mm")))
sketch9.addConstraint(Sketcher.Constraint("DistanceY", 0, 1, 0, 2, Q("7 mm")))
sketch9.addConstraint(Sketcher.Constraint("DistanceX", 1, 1, 1, 2, Q("66.5 mm")))
sketch9.addConstraint(Sketcher.Constraint("DistanceY", 6, 2, 5, 2, Q("188.3 mm")))
sketch9.addConstraint(Sketcher.Constraint("DistanceX", 0, 2, -1, 1, Q("32.25 mm")))
sketch9.setExpression("Constraints[28]", "Params.sketch9_width")
sketch9.setExpression("Constraints[29]", "Params.sketch9_height")
sketch9.setExpression("Constraints[30]", "Params.sketch9_width2")
pad9 = body.newObject("PartDesign::Pad", "Pad008")
pad9.Profile = sketch9
pad9.setExpression("Length", "Params.pad9_length")

# Sketch on XZ plane
sketch10 = body.newObject("Sketcher::SketchObject", "Sketch009")
sketch10.AttachmentSupport = (doc.getObject("XZ_Plane"), [""])
sketch10.MapMode = "FlatFace"
sketch10.addGeometry(Part.LineSegment(Vector(-34.25, -103.15, 0), Vector(-34.25, 103.15, 0)), False)
sketch10.addGeometry(Part.LineSegment(Vector(-34.25, 103.15, 0), Vector(34.25, 103.15, 0)), False)
sketch10.addGeometry(Part.LineSegment(Vector(34.25, 103.15, 0), Vector(34.25, -103.15, 0)), False)
sketch10.addGeometry(Part.LineSegment(Vector(34.25, -103.15, 0), Vector(-34.25, -103.15, 0)), False)
sketch10.addConstraint(Sketcher.Constraint("Coincident", 0, 2, 1, 1))
sketch10.addConstraint(Sketcher.Constraint("Coincident", 1, 2, 2, 1))
sketch10.addConstraint(Sketcher.Constraint("Coincident", 2, 2, 3, 1))
sketch10.addConstraint(Sketcher.Constraint("Coincident", 3, 2, 0, 1))
sketch10.addConstraint(Sketcher.Constraint("Vertical", 0))
sketch10.addConstraint(Sketcher.Constraint("Horizontal", 1))
sketch10.addConstraint(Sketcher.Constraint("Vertical", 2))
sketch10.addConstraint(Sketcher.Constraint("Horizontal", 3))
sketch10.addConstraint(Sketcher.Constraint("Symmetric", 0, 2, 2, 2, -1, 1))
sketch10.addConstraint(Sketcher.Constraint("DistanceX", 1, 1, 1, 2, Q("68.5 mm")))
sketch10.addConstraint(Sketcher.Constraint("DistanceY", 0, 1, 0, 2, Q("206.3 mm")))
sketch10.setExpression("Constraints[9]", "Params.sketch10_width")
sketch10.setExpression("Constraints[10]", "Params.sketch10_height")
pad10 = body.newObject("PartDesign::Pad", "Pad009")
pad10.Profile = sketch10
pad10.setExpression("Length", "Params.pad10_length")

doc.recompute()
